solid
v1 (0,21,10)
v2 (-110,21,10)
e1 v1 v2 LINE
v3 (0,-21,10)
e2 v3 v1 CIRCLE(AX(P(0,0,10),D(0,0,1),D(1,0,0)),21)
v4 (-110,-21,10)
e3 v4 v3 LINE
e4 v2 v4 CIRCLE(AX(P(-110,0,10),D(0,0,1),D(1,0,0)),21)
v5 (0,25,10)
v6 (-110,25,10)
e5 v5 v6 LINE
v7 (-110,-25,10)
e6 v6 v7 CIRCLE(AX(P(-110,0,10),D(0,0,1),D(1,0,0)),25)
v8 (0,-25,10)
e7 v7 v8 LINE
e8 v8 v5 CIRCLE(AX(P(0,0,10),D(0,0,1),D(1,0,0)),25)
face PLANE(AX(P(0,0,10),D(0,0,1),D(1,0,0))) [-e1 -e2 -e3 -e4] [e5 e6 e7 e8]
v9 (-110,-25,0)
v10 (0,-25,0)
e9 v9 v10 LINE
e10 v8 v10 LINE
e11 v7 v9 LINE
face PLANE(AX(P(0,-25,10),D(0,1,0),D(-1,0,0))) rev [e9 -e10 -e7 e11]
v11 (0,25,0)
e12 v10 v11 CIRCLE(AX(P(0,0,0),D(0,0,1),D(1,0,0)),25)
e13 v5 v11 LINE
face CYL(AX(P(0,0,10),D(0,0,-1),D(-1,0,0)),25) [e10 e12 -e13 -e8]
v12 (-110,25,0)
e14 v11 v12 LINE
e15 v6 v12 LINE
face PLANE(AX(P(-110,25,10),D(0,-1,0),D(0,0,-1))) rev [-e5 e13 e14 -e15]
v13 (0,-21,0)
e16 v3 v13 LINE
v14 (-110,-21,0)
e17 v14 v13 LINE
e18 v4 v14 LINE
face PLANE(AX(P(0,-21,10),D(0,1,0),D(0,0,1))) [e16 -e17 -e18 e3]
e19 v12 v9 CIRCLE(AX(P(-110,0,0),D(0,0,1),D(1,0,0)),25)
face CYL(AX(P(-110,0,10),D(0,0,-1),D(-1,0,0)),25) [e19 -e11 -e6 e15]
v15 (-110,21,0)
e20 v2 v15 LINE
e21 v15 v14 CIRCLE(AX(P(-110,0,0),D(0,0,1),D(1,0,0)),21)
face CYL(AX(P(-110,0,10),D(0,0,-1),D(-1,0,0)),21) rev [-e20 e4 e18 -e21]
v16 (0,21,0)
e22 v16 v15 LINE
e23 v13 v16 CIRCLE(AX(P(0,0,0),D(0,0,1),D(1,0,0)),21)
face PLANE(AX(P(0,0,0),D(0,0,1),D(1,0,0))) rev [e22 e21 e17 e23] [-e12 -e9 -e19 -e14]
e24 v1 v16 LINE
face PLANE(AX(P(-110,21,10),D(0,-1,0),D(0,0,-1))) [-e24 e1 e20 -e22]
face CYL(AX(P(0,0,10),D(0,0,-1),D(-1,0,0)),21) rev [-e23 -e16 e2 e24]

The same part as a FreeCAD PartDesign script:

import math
import FreeCAD as App
import Part
import Sketcher
Q = App.Units.Quantity

doc = App.newDocument("Part")
params = doc.addObject("Spreadsheet::Sheet", "Params")
for row, (alias, value) in enumerate([
    ("sketch1_radius", "25 mm"),
    ("sketch1_radius2", "21 mm"),
    ("sketch1_width", "110 mm"),
    ("pad1_length", "10 mm"),
], start=1):
    params.set(f"A{row}", alias)
    params.set(f"B{row}", "=" + value)
    params.setAlias(f"B{row}", alias)

body = doc.addObject("PartDesign::Body", "Body")

# Sketch on XY plane
sketch1 = doc.addObject("Sketcher::SketchObject", "Sketch")
body.addObject(sketch1)
sketch1.AttachmentSupport = (doc.XY_Plane, [""])
sketch1.MapMode = "FlatFace"
sketch1.addGeometry(Part.LineSegment(App.Vector(-110, -25, 0), App.Vector(0, -25, 0)), False)
sketch1.addGeometry(Part.ArcOfCircle(Part.Circle(App.Vector(0, 0, 0), App.Vector(0, 0, 1), 25), math.radians(-90), math.radians(90)), False)
sketch1.addGeometry(Part.LineSegment(App.Vector(0, 25, 0), App.Vector(-110, 25, 0)), False)
sketch1.addGeometry(Part.ArcOfCircle(Part.Circle(App.Vector(-110, 0, 0), App.Vector(0, 0, 1), 25), math.radians(90), math.radians(270)), False)
sketch1.addGeometry(Part.LineSegment(App.Vector(0, -21, 0), App.Vector(-110, -21, 0)), False)
sketch1.addGeometry(Part.ArcOfCircle(Part.Circle(App.Vector(-110, 0, 0), App.Vector(0, 0, 1), 21), math.radians(90), math.radians(270)), False)
sketch1.addGeometry(Part.LineSegment(App.Vector(-110, 21, 0), App.Vector(0, 21, 0)), False)
sketch1.addGeometry(Part.ArcOfCircle(Part.Circle(App.Vector(0, 0, 0), App.Vector(0, 0, 1), 21), math.radians(-90), math.radians(90)), False)
sketch1.addConstraint(Sketcher.Constraint("Tangent", 0, 2, 1, 1))
sketch1.addConstraint(Sketcher.Constraint("Tangent", 1, 2, 2, 1))
sketch1.addConstraint(Sketcher.Constraint("Tangent", 2, 2, 3, 1))
sketch1.addConstraint(Sketcher.Constraint("Tangent", 3, 2, 0, 1))
sketch1.addConstraint(Sketcher.Constraint("Tangent", 4, 2, 5, 2))
sketch1.addConstraint(Sketcher.Constraint("Tangent", 5, 1, 6, 1))
sketch1.addConstraint(Sketcher.Constraint("Tangent", 6, 2, 7, 2))
sketch1.addConstraint(Sketcher.Constraint("Tangent", 7, 1, 4, 1))
sketch1.addConstraint(Sketcher.Constraint("Horizontal", 0))
sketch1.addConstraint(Sketcher.Constraint("Horizontal", 2))
sketch1.addConstraint(Sketcher.Constraint("Horizontal", 4))
sketch1.addConstraint(Sketcher.Constraint("Horizontal", 6))
sketch1.addConstraint(Sketcher.Constraint("Coincident", 1, 3, -1, 1))
sketch1.addConstraint(Sketcher.Constraint("Coincident", 7, 3, -1, 1))
sketch1.addConstraint(Sketcher.Constraint("Vertical", 5, 3, 2, 2))
sketch1.addConstraint(Sketcher.Constraint("Radius", 1, Q("25 mm")))
sketch1.addConstraint(Sketcher.Constraint("Radius", 5, Q("21 mm")))
sketch1.addConstraint(Sketcher.Constraint("DistanceX", 0, 1, 0, 2, Q("110 mm")))
sketch1.setExpression("Constraints[15]", "Params.sketch1_radius")
sketch1.setExpression("Constraints[16]", "Params.sketch1_radius2")
sketch1.setExpression("Constraints[17]", "Params.sketch1_width")
pad1 = doc.addObject("PartDesign::Pad", "Pad")
body.addObject(pad1)
pad1.Profile = sketch1
pad1.setExpression("Length", "Params.pad1_length")

doc.recompute()
